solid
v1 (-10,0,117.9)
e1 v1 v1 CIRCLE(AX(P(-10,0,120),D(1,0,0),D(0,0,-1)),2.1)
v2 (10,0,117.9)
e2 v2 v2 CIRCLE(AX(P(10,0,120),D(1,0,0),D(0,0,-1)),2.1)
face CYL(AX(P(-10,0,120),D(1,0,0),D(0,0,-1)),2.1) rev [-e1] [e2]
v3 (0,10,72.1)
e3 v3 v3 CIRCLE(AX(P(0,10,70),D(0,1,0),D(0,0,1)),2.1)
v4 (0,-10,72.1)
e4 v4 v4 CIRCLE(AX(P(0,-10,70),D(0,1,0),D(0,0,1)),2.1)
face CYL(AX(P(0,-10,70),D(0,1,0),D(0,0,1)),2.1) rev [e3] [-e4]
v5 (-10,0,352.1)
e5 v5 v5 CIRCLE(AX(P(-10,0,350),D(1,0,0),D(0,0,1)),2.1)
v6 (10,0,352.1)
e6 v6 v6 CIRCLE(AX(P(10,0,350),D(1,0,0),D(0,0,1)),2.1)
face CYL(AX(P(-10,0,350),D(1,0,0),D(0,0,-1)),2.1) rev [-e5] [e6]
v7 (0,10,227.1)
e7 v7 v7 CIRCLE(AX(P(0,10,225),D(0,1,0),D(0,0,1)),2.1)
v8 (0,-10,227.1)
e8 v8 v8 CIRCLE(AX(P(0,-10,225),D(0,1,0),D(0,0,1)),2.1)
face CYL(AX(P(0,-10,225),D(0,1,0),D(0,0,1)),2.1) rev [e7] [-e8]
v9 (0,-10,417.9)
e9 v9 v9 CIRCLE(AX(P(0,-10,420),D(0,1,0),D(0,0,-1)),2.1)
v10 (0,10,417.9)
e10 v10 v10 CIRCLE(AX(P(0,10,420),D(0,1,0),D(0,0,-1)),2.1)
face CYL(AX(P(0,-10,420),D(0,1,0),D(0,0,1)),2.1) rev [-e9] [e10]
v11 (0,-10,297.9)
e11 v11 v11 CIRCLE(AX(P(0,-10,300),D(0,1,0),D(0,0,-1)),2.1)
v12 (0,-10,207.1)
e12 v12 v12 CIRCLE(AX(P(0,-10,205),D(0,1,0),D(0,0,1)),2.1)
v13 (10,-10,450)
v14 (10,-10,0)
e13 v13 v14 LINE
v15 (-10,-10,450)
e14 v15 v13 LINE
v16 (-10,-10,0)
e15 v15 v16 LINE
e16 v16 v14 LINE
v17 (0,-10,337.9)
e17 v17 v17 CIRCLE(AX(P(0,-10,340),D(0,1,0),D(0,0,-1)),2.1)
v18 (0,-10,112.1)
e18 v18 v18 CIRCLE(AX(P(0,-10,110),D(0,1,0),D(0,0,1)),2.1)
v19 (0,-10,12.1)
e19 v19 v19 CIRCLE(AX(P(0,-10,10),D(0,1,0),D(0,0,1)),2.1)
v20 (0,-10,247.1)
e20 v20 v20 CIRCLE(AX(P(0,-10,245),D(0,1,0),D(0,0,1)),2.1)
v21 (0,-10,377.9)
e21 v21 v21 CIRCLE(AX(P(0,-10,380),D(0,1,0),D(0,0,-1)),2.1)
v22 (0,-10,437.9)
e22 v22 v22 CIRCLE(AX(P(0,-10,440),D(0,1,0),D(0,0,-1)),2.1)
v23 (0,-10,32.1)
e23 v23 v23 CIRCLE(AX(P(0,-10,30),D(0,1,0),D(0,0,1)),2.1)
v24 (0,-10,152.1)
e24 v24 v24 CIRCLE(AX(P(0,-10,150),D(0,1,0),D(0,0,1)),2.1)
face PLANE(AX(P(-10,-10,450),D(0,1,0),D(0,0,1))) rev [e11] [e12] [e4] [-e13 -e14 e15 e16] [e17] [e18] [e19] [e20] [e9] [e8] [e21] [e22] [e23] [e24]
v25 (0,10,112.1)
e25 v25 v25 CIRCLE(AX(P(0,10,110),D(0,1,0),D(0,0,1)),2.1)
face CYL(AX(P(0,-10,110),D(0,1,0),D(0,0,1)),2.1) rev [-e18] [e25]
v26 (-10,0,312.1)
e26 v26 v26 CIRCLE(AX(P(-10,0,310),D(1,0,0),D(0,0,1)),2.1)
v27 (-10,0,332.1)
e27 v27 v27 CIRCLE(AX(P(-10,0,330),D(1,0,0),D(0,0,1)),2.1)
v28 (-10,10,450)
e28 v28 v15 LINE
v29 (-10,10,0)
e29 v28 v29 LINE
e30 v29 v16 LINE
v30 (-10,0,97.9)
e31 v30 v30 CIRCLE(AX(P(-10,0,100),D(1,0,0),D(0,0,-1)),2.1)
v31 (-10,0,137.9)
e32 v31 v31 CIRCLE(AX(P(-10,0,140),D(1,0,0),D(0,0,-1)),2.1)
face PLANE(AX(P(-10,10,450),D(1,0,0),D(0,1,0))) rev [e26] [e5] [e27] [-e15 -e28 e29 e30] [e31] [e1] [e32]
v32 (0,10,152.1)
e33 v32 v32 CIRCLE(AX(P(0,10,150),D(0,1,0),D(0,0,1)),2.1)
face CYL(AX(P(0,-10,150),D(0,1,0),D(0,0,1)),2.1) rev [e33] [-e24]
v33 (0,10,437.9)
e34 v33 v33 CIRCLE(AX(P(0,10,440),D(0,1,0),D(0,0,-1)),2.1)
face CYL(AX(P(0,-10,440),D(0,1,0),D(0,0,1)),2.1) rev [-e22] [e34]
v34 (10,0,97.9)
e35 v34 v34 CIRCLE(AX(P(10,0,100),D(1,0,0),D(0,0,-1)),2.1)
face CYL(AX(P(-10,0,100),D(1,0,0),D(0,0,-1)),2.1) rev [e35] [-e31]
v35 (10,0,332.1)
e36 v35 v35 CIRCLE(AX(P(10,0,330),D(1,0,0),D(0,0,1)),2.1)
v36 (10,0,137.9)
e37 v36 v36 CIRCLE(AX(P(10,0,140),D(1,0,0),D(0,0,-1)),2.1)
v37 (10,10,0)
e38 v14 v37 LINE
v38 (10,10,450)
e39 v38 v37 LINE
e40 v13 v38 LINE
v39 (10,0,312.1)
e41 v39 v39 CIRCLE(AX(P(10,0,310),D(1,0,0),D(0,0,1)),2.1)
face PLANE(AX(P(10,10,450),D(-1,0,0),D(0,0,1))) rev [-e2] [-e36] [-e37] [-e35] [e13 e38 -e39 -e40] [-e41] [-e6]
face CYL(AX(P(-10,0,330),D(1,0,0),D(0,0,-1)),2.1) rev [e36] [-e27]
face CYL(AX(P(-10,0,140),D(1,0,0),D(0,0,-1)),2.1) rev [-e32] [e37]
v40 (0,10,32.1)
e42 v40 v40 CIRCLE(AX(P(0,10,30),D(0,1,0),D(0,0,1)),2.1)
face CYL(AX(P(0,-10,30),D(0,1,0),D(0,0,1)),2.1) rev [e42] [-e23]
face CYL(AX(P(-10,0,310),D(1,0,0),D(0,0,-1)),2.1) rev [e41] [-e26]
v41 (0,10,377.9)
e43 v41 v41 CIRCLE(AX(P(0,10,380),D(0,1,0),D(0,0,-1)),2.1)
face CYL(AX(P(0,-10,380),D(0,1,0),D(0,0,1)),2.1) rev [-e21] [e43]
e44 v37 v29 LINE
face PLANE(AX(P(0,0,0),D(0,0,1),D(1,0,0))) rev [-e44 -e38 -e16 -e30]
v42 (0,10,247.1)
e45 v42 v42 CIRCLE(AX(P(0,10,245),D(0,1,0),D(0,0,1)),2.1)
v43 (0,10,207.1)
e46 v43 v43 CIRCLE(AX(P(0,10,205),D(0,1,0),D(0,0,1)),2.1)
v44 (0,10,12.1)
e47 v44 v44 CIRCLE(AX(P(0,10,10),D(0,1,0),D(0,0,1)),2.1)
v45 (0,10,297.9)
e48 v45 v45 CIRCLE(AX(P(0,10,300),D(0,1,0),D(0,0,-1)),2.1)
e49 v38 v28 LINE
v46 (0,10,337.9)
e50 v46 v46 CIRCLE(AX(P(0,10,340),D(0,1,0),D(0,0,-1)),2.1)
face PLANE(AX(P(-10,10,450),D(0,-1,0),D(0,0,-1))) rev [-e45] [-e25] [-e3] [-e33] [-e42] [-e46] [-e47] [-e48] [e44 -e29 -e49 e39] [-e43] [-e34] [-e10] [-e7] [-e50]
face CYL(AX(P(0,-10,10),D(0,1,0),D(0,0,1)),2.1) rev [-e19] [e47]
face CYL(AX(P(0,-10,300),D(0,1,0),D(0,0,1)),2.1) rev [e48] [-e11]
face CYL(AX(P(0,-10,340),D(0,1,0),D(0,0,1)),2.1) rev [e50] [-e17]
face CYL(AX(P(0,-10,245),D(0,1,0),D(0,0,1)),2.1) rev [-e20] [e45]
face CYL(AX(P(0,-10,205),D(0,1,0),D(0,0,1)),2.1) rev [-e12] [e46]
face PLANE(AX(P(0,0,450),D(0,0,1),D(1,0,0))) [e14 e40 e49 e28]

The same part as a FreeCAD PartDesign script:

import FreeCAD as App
import Part
import Sketcher
from FreeCAD import Vector

doc = App.newDocument("Part")
body = doc.addObject("PartDesign::Body", "Body")

# Sketch on XY plane
sketch1 = doc.addObject("Sketcher::SketchObject", "Sketch")
body.addObject(sketch1)
sketch1.AttachmentSupport = (doc.XY_Plane, [""])
sketch1.MapMode = "FlatFace"
sketch1.addGeometry([
    Part.LineSegment(Vector(-10, 10, 0), Vector(-10, -10, 0)),
    Part.LineSegment(Vector(-10, -10, 0), Vector(10, -10, 0)),
    Part.LineSegment(Vector(10, -10, 0), Vector(10, 10, 0)),
    Part.LineSegment(Vector(10, 10, 0), Vector(-10, 10, 0)),
], False)
sketch1.addConstraint([
    Sketcher.Constraint("Coincident", 0, 2, 1, 1),
    Sketcher.Constraint("Coincident", 1, 2, 2, 1),
    Sketcher.Constraint("Coincident", 2, 2, 3, 1),
    Sketcher.Constraint("Coincident", 3, 2, 0, 1),
    Sketcher.Constraint("Vertical", 0),
    Sketcher.Constraint("Horizontal", 1),
    Sketcher.Constraint("Vertical", 2),
    Sketcher.Constraint("Horizontal", 3),
    Sketcher.Constraint("Symmetric", 0, 2, 2, 2, -1, 1),
    Sketcher.Constraint("Equal", 3, 0),
    Sketcher.Constraint("DistanceX", 1, 1, 1, 2, 20.0),
])
pad1 = doc.addObject("PartDesign::Pad", "Pad")
body.addObject(pad1)
pad1.Profile = sketch1
pad1.Length = 450

# Sketch on YZ plane
sketch2 = doc.addObject("Sketcher::SketchObject", "Sketch001")
body.addObject(sketch2)
sketch2.AttachmentSupport = (doc.YZ_Plane, [""])
sketch2.MapMode = "FlatFace"
sketch2.AttachmentOffset = App.Placement(Vector(0, 0, 10), App.Rotation())
sketch2.addGeometry([
    Part.Circle(Vector(0, 100, 0), Vector(0, 0, 1), 2.1),  # 0
    Part.Circle(Vector(0, 120, 0), Vector(0, 0, 1), 2.1),  # 1
    Part.Circle(Vector(0, 140, 0), Vector(0, 0, 1), 2.1),  # 2
    Part.Circle(Vector(0, 350, 0), Vector(0, 0, 1), 2.1),  # 3
    Part.Circle(Vector(0, 330, 0), Vector(0, 0, 1), 2.1),  # 4
    Part.Circle(Vector(0, 310, 0), Vector(0, 0, 1), 2.1),  # 5
], False)
sketch2.addConstraint([
    Sketcher.Constraint("Equal", 0, 1),
    Sketcher.Constraint("Equal", 1, 2),
    Sketcher.Constraint("Equal", 2, 3),
    Sketcher.Constraint("Equal", 3, 4),
    Sketcher.Constraint("Equal", 4, 5),
    Sketcher.Constraint("PointOnObject", 0, 3, -2),
    Sketcher.Constraint("PointOnObject", 1, 3, -2),
    Sketcher.Constraint("PointOnObject", 2, 3, -2),
    Sketcher.Constraint("PointOnObject", 3, 3, -2),
    Sketcher.Constraint("PointOnObject", 4, 3, -2),
    Sketcher.Constraint("PointOnObject", 5, 3, -2),
    Sketcher.Constraint("Diameter", 0, 4.2),
    Sketcher.Constraint("DistanceY", -1, 1, 0, 3, 100.0),
    Sketcher.Constraint("DistanceY", -1, 1, 1, 3, 120.0),
    Sketcher.Constraint("DistanceY", -1, 1, 2, 3, 140.0),
    Sketcher.Constraint("DistanceY", -1, 1, 3, 3, 350.0),
    Sketcher.Constraint("DistanceY", -1, 1, 4, 3, 330.0),
    Sketcher.Constraint("DistanceY", -1, 1, 5, 3, 310.0),
])
pocket1 = doc.addObject("PartDesign::Pocket", "Pocket")
body.addObject(pocket1)
pocket1.Profile = sketch2
pocket1.Type = "ThroughAll"

# Sketch on XZ plane
sketch3 = doc.addObject("Sketcher::SketchObject", "Sketch002")
body.addObject(sketch3)
sketch3.AttachmentSupport = (doc.XZ_Plane, [""])
sketch3.MapMode = "FlatFace"
sketch3.AttachmentOffset = App.Placement(Vector(0, 0, -10), App.Rotation())
sketch3.addGeometry([
    Part.Circle(Vector(0, 245, 0), Vector(0, 0, 1), 2.1),
    Part.Circle(Vector(0, 225, 0), Vector(0, 0, 1), 2.1),
    Part.Circle(Vector(0, 205, 0), Vector(0, 0, 1), 2.1),
], False)
sketch3.addConstraint([
    Sketcher.Constraint("Equal", 0, 1),
    Sketcher.Constraint("Equal", 1, 2),
    Sketcher.Constraint("PointOnObject", 0, 3, -2),
    Sketcher.Constraint("PointOnObject", 1, 3, -2),
    Sketcher.Constraint("PointOnObject", 2, 3, -2),
    Sketcher.Constraint("Diameter", 0, 4.2),
    Sketcher.Constraint("DistanceY", -1, 1, 0, 3, 245.0),
    Sketcher.Constraint("DistanceY", -1, 1, 1, 3, 225.0),
    Sketcher.Constraint("DistanceY", -1, 1, 2, 3, 205.0),
])
pocket2 = doc.addObject("PartDesign::Pocket", "Pocket001")
body.addObject(pocket2)
pocket2.Profile = sketch3
pocket2.Type = "ThroughAll"
pocket2.Reversed = True

# Sketch on XZ plane
sketch4 = doc.addObject("Sketcher::SketchObject", "Sketch003")
body.addObject(sketch4)
sketch4.AttachmentSupport = (doc.XZ_Plane, [""])
sketch4.MapMode = "FlatFace"
sketch4.AttachmentOffset = App.Placement(Vector(0, 0, -10), App.Rotation())
sketch4.addGeometry([
    Part.Circle(Vector(0, 10, 0), Vector(0, 0, 1), 2.1),  # 0
    Part.Circle(Vector(0, 30, 0), Vector(0, 0, 1), 2.1),  # 1
    Part.Circle(Vector(0, 440, 0), Vector(0, 0, 1), 2.1),  # 2
    Part.Circle(Vector(0, 420, 0), Vector(0, 0, 1), 2.1),  # 3
    Part.Circle(Vector(0, 70, 0), Vector(0, 0, 1), 2.1),  # 4
    Part.Circle(Vector(0, 110, 0), Vector(0, 0, 1), 2.1),  # 5
    Part.Circle(Vector(0, 150, 0), Vector(0, 0, 1), 2.1),  # 6
    Part.Circle(Vector(0, 380, 0), Vector(0, 0, 1), 2.1),  # 7
    Part.Circle(Vector(0, 340, 0), Vector(0, 0, 1), 2.1),  # 8
    Part.Circle(Vector(0, 300, 0), Vector(0, 0, 1), 2.1),  # 9
], False)
sketch4.addConstraint([
    Sketcher.Constraint("Equal", 0, 1),
    Sketcher.Constraint("Equal", 1, 2),
    Sketcher.Constraint("Equal", 2, 3),
    Sketcher.Constraint("Equal", 3, 4),
    Sketcher.Constraint("Equal", 4, 5),
    Sketcher.Constraint("Equal", 5, 6),
    Sketcher.Constraint("Equal", 6, 7),
    Sketcher.Constraint("Equal", 7, 8),
    Sketcher.Constraint("Equal", 8, 9),
    Sketcher.Constraint("PointOnObject", 0, 3, -2),
    Sketcher.Constraint("PointOnObject", 1, 3, -2),
    Sketcher.Constraint("PointOnObject", 2, 3, -2),
    Sketcher.Constraint("PointOnObject", 3, 3, -2),
    Sketcher.Constraint("PointOnObject", 4, 3, -2),
    Sketcher.Constraint("PointOnObject", 5, 3, -2),
    Sketcher.Constraint("PointOnObject", 6, 3, -2),
    Sketcher.Constraint("PointOnObject", 7, 3, -2),
    Sketcher.Constraint("PointOnObject", 8, 3, -2),
    Sketcher.Constraint("PointOnObject", 9, 3, -2),
    Sketcher.Constraint("Diameter", 0, 4.2),
    Sketcher.Constraint("DistanceY", -1, 1, 0, 3, 10.0),
    Sketcher.Constraint("DistanceY", -1, 1, 1, 3, 30.0),
    Sketcher.Constraint("DistanceY", -1, 1, 2, 3, 440.0),
    Sketcher.Constraint("DistanceY", -1, 1, 3, 3, 420.0),
    Sketcher.Constraint("DistanceY", -1, 1, 4, 3, 70.0),
    Sketcher.Constraint("DistanceY", -1, 1, 5, 3, 110.0),
    Sketcher.Constraint("DistanceY", -1, 1, 6, 3, 150.0),
    Sketcher.Constraint("DistanceY", -1, 1, 7, 3, 380.0),
    Sketcher.Constraint("DistanceY", -1, 1, 8, 3, 340.0),
    Sketcher.Constraint("DistanceY", -1, 1, 9, 3, 300.0),
])
pocket3 = doc.addObject("PartDesign::Pocket", "Pocket002")
body.addObject(pocket3)
pocket3.Profile = sketch4
pocket3.Type = "ThroughAll"
pocket3.Reversed = True

doc.recompute()
